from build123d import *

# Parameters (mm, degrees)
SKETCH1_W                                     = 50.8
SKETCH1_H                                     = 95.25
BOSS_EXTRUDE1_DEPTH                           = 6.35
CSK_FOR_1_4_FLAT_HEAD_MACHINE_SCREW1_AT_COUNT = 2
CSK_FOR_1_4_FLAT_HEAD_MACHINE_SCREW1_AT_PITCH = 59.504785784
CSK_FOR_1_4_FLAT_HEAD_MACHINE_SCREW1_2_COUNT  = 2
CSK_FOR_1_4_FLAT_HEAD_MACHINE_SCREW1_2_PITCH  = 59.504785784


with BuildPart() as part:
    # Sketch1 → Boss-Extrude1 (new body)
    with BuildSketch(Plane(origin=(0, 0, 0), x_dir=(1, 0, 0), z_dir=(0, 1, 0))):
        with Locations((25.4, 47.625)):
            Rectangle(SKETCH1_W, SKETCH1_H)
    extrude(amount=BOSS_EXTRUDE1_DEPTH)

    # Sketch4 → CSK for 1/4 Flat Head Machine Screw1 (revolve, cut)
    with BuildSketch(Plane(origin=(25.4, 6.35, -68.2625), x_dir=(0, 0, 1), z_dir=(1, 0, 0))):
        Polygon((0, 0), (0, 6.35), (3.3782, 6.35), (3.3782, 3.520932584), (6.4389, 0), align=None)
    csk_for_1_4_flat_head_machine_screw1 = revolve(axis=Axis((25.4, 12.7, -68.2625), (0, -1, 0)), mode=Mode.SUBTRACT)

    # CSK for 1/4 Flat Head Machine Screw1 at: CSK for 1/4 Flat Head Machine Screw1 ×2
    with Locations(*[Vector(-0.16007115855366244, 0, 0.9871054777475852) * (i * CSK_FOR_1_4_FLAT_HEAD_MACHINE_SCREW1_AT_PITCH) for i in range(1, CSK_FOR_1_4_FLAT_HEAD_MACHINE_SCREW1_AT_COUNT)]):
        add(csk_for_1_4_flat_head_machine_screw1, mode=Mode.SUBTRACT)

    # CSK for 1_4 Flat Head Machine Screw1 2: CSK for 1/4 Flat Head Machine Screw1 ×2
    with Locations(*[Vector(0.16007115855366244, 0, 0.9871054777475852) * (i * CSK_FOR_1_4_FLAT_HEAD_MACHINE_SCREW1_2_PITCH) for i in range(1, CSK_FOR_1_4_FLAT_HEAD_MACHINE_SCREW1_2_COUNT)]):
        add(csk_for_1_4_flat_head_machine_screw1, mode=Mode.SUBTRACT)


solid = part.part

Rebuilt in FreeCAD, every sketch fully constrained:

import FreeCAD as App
import Part
import Sketcher
from FreeCAD import Vector
Q = App.Units.Quantity

doc = App.newDocument("Part")
params = doc.addObject("Spreadsheet::Sheet", "Params")
for row, (alias, value) in enumerate([
    ("sketch1_width", "2 in"),
    ("sketch1_height", "3.75 in"),
    ("pad1_length", "0.25 in"),
    ("sketch2_width", "0.25 in"),
    ("sketch2_height", "0.133 in"),
    ("groove_angle", "360 deg"),
    ("linearpattern_pitch", "59.504786 mm"),
    ("linearpattern2_pitch", "59.504786 mm"),
], start=1):
    params.set(f"A{row}", alias)
    params.set(f"B{row}", "=" + value)
    params.setAlias(f"B{row}", alias)

body = doc.addObject("PartDesign::Body", "Body")

sketch1 = body.newObject("Sketcher::SketchObject", "Sketch")
sketch1.AttachmentSupport = (doc.getObject("XZ_Plane"), [""])
sketch1.MapMode = "FlatFace"
sketch1.addGeometry([
    Part.LineSegment(Vector(0, -95, 0), Vector(0, 0, 0)),
    Part.LineSegment(Vector(0, 0, 0), Vector(51, 0, 0)),
    Part.LineSegment(Vector(51, 0, 0), Vector(51, -95, 0)),
    Part.LineSegment(Vector(51, -95, 0), Vector(0, -95, 0)),
], False)
sketch1.addConstraint([
    Sketcher.Constraint("Coincident", 0, 2, 1, 1),
    Sketcher.Constraint("Coincident", 1, 2, 2, 1),
    Sketcher.Constraint("Coincident", 2, 2, 3, 1),
    Sketcher.Constraint("Coincident", 3, 2, 0, 1),
    Sketcher.Constraint("Vertical", 0),
    Sketcher.Constraint("Horizontal", 1),
    Sketcher.Constraint("Vertical", 2),
    Sketcher.Constraint("Horizontal", 3),
    Sketcher.Constraint("Coincident", 0, 2, -1, 1),
    Sketcher.Constraint("DistanceX", 1, 1, 1, 2, Q("2 in")),
    Sketcher.Constraint("DistanceY", 0, 1, 0, 2, Q("3.75 in")),
])
sketch1.setExpression("Constraints[9]", "Params.sketch1_width")
sketch1.setExpression("Constraints[10]", "Params.sketch1_height")
pad1 = body.newObject("PartDesign::Pad", "Pad")
pad1.Profile = sketch1
pad1.setExpression("Length", "Params.pad1_length")
pad1.Reversed = True

sketch2 = body.newObject("Sketcher::SketchObject", "Sketch001")
sketch2.AttachmentSupport = (doc.getObject("YZ_Plane"), [""])
sketch2.MapMode = "FlatFace"
sketch2.AttachmentOffset = App.Placement(Vector(0, 0, 1 * 25.4), App.Rotation())
sketch2.addGeometry([
    Part.LineSegment(Vector(0, -68.3, 0), Vector(6.3, -68.3, 0)),
    Part.LineSegment(Vector(6.3, -68.3, 0), Vector(6.3, -61.8, 0)),
    Part.LineSegment(Vector(6.3, -61.8, 0), Vector(2.8, -64.9, 0)),
    Part.LineSegment(Vector(2.8, -64.9, 0), Vector(0, -64.9, 0)),
    Part.LineSegment(Vector(0, -64.9, 0), Vector(0, -68.3, 0)),
], False)
sketch2.addGeometry(Part.LineSegment(Vector(6.3, -68.3, 0), Vector(0, -68.3, 0)), True)
sketch2.addConstraint([
    Sketcher.Constraint("Coincident", 0, 2, 1, 1),
    Sketcher.Constraint("Coincident", 1, 2, 2, 1),
    Sketcher.Constraint("Coincident", 2, 2, 3, 1),
    Sketcher.Constraint("Coincident", 3, 2, 4, 1),
    Sketcher.Constraint("Coincident", 4, 2, 0, 1),
    Sketcher.Constraint("Horizontal", 0),
    Sketcher.Constraint("Vertical", 1),
    Sketcher.Constraint("Horizontal", 3),
    Sketcher.Constraint("Vertical", 4),
    Sketcher.Constraint("Horizontal", 5),
    Sketcher.Constraint("Coincident", 5, 1, 0, 2),
    Sketcher.Constraint("PointOnObject", 3, 2, -2),
    Sketcher.Constraint("PointOnObject", 5, 2, -2),
    Sketcher.Constraint("Angle", 2, Q("-139 deg")),
    Sketcher.Constraint("DistanceX", 0, 1, 0, 2, Q("0.25 in")),
    Sketcher.Constraint("DistanceY", 4, 2, 4, 1, Q("0.133 in")),
    Sketcher.Constraint("DistanceY", 1, 1, 1, 2, Q("0.2535 in")),
    Sketcher.Constraint("DistanceY", 0, 2, -1, 1, Q("2.6875 in")),
])
sketch2.setExpression("Constraints[14]", "Params.sketch2_width")
sketch2.setExpression("Constraints[15]", "Params.sketch2_height")
groove = body.newObject("PartDesign::Groove", "Groove")
groove.Profile = sketch2
groove.ReferenceAxis = (sketch2, ["Axis0"])
groove.setExpression("Angle", "Params.groove_angle")
doc.recompute()

datumline = body.newObject("PartDesign::Line", "DatumLine")
datumline.Placement = App.Placement(Vector(0, 0, 0), App.Rotation(Vector(0, 0, 1), Vector(-0.160071159, 0, 0.987105478)))
linearpattern = body.newObject("PartDesign::LinearPattern", "LinearPattern")
linearpattern.Originals = [groove]
linearpattern.Direction = (datumline, [""])
linearpattern.Mode = "offset"
linearpattern.setExpression("Offset", "Params.linearpattern_pitch")
linearpattern.Occurrences = 2
body.Tip = linearpattern
doc.recompute()

datumline2 = body.newObject("PartDesign::Line", "DatumLine001")
datumline2.Placement = App.Placement(Vector(0, 0, 0), App.Rotation(Vector(0, 0, 1), Vector(0.160071159, 0, 0.987105478)))
linearpattern2 = body.newObject("PartDesign::LinearPattern", "LinearPattern001")
linearpattern2.Originals = [groove]
linearpattern2.Direction = (datumline2, [""])
linearpattern2.Mode = "offset"
linearpattern2.setExpression("Offset", "Params.linearpattern2_pitch")
linearpattern2.Occurrences = 2
body.Tip = linearpattern2

doc.recompute()
